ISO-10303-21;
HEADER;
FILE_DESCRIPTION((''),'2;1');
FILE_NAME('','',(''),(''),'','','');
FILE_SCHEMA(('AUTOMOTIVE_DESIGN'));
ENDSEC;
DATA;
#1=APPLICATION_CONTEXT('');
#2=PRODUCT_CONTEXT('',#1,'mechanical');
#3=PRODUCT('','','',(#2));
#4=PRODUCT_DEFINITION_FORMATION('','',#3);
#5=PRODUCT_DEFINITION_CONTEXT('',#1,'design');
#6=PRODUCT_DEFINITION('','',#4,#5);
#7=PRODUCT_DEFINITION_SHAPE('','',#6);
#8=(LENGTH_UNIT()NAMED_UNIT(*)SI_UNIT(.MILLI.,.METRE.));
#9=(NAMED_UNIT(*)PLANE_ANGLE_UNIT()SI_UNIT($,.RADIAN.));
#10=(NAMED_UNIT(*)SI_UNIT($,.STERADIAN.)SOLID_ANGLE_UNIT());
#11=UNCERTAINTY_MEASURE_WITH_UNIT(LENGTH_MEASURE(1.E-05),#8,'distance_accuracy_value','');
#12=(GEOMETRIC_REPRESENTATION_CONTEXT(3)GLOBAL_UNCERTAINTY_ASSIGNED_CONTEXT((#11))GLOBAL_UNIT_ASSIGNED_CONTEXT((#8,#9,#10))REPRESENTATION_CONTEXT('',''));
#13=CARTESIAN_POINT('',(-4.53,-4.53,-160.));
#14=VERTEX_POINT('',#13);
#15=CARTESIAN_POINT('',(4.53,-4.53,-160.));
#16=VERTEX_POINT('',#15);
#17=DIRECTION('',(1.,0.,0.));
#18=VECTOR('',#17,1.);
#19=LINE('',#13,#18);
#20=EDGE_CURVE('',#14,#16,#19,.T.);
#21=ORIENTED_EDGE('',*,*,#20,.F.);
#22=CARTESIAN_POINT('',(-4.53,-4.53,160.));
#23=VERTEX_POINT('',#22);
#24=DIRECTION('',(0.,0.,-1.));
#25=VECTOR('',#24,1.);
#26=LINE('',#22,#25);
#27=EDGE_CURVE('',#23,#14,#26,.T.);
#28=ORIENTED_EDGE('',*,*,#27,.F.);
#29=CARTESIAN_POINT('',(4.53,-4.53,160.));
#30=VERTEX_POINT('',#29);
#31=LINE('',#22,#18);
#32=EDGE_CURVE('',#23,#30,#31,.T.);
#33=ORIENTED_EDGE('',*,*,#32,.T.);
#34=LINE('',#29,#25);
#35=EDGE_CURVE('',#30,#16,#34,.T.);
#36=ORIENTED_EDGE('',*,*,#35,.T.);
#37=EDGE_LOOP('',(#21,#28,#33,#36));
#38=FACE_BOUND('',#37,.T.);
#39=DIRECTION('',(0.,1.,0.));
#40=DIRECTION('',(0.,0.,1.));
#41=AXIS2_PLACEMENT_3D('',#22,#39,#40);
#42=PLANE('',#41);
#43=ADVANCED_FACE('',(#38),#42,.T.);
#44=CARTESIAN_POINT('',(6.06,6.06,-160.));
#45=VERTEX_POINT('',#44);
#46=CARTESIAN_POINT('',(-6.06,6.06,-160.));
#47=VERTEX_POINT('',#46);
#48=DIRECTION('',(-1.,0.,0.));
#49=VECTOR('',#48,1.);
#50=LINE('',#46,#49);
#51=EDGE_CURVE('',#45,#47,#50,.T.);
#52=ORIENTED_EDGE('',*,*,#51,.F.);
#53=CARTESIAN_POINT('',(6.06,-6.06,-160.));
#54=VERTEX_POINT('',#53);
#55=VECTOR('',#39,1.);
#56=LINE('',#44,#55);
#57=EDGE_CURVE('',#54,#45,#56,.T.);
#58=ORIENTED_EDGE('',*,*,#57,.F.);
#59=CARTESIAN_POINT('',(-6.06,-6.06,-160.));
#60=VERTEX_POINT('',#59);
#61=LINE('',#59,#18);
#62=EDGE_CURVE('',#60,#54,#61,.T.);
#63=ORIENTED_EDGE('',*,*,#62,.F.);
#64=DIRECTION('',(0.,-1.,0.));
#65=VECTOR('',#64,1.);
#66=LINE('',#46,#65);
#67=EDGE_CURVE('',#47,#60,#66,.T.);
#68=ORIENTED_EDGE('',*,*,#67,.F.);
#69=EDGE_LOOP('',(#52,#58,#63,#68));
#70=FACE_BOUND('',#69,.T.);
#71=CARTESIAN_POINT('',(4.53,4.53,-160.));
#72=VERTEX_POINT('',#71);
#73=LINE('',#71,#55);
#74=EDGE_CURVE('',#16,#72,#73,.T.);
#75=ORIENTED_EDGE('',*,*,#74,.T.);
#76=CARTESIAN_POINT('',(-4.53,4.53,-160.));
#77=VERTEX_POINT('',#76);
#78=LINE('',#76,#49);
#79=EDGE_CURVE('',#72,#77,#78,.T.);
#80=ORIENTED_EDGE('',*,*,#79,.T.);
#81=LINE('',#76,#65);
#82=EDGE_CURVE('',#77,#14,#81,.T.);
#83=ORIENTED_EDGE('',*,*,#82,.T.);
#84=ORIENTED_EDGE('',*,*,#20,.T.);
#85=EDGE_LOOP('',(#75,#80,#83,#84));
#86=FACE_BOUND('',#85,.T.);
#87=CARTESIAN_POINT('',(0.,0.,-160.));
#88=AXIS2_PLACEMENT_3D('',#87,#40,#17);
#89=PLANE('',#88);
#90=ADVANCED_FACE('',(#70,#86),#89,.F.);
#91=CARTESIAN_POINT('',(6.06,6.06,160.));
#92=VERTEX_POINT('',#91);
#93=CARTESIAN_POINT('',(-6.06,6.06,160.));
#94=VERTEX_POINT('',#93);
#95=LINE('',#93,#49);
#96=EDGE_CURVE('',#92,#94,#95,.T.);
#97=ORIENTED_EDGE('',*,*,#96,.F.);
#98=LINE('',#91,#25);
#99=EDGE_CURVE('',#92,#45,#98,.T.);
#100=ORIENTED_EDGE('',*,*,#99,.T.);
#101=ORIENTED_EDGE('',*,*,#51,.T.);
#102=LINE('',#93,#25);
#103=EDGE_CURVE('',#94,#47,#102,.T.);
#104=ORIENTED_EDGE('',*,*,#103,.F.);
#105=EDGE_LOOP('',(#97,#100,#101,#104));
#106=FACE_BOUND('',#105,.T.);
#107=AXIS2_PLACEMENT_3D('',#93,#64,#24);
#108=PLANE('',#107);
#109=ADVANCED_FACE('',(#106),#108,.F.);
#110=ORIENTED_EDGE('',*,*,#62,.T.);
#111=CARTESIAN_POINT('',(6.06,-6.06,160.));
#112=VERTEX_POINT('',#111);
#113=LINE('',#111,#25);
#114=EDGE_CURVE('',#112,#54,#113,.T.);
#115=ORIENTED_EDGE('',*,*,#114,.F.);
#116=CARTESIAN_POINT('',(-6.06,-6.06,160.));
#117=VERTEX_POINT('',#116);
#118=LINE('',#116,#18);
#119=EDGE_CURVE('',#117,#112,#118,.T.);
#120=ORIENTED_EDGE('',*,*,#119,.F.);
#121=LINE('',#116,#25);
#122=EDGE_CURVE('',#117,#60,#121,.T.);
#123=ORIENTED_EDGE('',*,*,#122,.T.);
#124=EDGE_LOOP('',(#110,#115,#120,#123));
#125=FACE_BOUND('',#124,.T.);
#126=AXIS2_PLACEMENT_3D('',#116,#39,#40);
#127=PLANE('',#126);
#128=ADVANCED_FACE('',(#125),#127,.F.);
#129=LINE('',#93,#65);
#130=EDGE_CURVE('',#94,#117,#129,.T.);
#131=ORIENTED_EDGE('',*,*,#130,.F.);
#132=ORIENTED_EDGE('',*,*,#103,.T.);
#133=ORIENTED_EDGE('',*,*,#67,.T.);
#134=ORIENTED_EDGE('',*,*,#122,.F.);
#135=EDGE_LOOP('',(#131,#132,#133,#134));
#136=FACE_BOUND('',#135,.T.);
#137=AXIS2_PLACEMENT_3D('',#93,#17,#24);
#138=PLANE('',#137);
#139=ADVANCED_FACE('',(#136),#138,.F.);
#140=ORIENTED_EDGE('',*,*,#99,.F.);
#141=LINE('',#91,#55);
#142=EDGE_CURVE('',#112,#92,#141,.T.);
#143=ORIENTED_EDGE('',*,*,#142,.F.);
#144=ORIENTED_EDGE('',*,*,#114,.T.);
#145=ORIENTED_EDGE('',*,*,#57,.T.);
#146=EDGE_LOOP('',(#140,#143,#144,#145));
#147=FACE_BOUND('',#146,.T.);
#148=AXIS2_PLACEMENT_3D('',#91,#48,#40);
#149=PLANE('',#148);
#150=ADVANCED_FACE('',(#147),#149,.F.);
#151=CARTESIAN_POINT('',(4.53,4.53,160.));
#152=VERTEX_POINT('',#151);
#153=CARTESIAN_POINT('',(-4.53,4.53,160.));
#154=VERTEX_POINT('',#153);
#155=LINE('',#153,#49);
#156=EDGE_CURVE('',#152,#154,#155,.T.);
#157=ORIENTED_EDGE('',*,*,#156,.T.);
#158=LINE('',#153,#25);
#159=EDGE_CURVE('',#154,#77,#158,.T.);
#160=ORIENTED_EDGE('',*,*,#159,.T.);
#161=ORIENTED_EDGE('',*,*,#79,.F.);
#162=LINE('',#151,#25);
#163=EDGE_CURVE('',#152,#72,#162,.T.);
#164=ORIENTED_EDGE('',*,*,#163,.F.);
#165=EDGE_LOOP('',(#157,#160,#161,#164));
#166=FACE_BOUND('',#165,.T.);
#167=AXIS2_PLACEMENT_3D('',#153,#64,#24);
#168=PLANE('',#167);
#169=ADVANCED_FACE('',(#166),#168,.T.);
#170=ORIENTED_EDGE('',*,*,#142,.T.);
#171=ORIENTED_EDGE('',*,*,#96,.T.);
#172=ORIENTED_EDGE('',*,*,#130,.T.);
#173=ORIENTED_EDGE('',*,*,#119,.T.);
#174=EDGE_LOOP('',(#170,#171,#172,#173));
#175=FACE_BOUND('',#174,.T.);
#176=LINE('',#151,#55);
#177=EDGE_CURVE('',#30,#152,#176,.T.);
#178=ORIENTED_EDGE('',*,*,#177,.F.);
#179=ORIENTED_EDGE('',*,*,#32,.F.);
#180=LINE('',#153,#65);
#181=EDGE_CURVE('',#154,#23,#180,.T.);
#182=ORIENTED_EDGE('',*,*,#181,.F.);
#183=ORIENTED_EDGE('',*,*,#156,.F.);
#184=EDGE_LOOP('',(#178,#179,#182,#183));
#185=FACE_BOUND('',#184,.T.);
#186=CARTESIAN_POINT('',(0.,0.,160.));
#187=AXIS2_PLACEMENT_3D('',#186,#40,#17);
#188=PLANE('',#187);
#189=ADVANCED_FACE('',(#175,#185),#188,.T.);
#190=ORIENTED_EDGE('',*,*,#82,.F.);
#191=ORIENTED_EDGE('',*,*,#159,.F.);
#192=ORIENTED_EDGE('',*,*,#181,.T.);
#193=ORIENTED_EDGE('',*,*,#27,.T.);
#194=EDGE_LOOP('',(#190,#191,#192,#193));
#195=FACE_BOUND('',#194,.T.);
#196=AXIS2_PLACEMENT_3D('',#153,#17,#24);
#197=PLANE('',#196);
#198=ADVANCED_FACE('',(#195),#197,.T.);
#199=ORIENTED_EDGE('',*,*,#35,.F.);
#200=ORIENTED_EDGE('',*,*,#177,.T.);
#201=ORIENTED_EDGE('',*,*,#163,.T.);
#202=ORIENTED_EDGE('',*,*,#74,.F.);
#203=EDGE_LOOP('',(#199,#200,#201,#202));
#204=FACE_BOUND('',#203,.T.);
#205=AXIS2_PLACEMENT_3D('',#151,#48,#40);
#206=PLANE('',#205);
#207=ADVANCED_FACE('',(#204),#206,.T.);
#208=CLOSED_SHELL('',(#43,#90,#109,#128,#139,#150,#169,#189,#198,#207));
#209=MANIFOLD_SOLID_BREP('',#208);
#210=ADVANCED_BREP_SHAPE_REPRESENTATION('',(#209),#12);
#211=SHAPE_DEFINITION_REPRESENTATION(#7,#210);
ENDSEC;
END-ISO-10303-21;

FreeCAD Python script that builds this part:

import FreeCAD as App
import Part
import Sketcher
Q = App.Units.Quantity

doc = App.newDocument("Part")
body = doc.addObject("PartDesign::Body", "Body")

sketch1 = body.newObject("Sketcher::SketchObject", "Sketch")
sketch1.AttachmentSupport = (doc.getObject("XY_Plane"), [""])
sketch1.MapMode = "FlatFace"
sketch1.addGeometry([
    Part.LineSegment(App.Vector(-6, 6, 0), App.Vector(-6, -6, 0)),
    Part.LineSegment(App.Vector(-6, -6, 0), App.Vector(6, -6, 0)),
    Part.LineSegment(App.Vector(6, -6, 0), App.Vector(6, 6, 0)),
    Part.LineSegment(App.Vector(6, 6, 0), App.Vector(-6, 6, 0)),
    Part.LineSegment(App.Vector(5, -5, 0), App.Vector(-5, -5, 0)),
    Part.LineSegment(App.Vector(-5, -5, 0), App.Vector(-5, 5, 0)),
    Part.LineSegment(App.Vector(-5, 5, 0), App.Vector(5, 5, 0)),
    Part.LineSegment(App.Vector(5, 5, 0), App.Vector(5, -5, 0)),
], False)
sketch1.addConstraint([
    Sketcher.Constraint("Coincident", 0, 2, 1, 1),
    Sketcher.Constraint("Coincident", 1, 2, 2, 1),
    Sketcher.Constraint("Coincident", 2, 2, 3, 1),
    Sketcher.Constraint("Coincident", 3, 2, 0, 1),
    Sketcher.Constraint("Coincident", 4, 2, 5, 1),
    Sketcher.Constraint("Coincident", 5, 2, 6, 1),
    Sketcher.Constraint("Coincident", 6, 2, 7, 1),
    Sketcher.Constraint("Coincident", 7, 2, 4, 1),
    Sketcher.Constraint("Vertical", 0),
    Sketcher.Constraint("Horizontal", 1),
    Sketcher.Constraint("Vertical", 2),
    Sketcher.Constraint("Horizontal", 3),
    Sketcher.Constraint("Horizontal", 4),
    Sketcher.Constraint("Vertical", 5),
    Sketcher.Constraint("Horizontal", 6),
    Sketcher.Constraint("Vertical", 7),
    Sketcher.Constraint("Symmetric", 0, 2, 2, 2, -1, 1),
    Sketcher.Constraint("Symmetric", 4, 2, 6, 2, -1, 1),
    Sketcher.Constraint("Equal", 3, 0),
    Sketcher.Constraint("Equal", 6, 5),
    Sketcher.Constraint("DistanceX", 1, 1, 1, 2, Q("12.12 mm")),
    Sketcher.Constraint("DistanceX", 4, 2, 4, 1, Q("9.06 mm")),
])
pad1 = body.newObject("PartDesign::Pad", "Pad")
pad1.Profile = sketch1
pad1.Length = 320
pad1.Midplane = True

doc.recompute()
